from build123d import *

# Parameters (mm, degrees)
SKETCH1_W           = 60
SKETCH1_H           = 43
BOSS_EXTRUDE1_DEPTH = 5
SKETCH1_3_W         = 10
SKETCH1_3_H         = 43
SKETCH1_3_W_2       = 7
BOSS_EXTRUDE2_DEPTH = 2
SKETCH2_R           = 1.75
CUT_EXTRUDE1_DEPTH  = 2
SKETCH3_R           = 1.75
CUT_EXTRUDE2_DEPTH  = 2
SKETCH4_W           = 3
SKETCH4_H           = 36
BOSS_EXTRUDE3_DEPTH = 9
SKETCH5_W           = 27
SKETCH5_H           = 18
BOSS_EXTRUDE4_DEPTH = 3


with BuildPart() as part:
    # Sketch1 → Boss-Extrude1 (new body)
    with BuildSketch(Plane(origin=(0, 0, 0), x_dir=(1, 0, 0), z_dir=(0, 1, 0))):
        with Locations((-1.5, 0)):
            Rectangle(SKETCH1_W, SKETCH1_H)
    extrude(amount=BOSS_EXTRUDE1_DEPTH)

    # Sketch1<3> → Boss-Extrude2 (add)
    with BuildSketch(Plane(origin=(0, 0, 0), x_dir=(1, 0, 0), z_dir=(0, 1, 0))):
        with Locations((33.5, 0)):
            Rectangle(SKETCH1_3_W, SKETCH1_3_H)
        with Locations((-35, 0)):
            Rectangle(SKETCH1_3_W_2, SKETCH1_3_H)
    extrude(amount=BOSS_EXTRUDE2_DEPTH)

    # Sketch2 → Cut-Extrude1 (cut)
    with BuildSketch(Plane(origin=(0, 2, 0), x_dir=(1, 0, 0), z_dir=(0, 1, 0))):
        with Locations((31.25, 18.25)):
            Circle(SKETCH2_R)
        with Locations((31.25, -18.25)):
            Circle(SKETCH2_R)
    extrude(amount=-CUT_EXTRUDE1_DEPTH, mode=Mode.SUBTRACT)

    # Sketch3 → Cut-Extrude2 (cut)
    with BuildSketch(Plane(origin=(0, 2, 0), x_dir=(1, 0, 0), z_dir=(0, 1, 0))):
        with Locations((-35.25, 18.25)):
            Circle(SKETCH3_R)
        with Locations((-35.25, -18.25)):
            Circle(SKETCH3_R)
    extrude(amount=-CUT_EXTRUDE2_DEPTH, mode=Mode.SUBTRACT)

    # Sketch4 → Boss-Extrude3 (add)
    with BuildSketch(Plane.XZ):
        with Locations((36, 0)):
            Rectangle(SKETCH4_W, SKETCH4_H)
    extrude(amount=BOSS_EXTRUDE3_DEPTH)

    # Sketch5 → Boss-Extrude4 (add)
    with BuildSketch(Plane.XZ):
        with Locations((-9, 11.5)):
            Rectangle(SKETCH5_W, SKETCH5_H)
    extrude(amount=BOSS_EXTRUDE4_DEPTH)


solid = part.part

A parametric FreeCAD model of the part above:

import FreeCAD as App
import Part
import Sketcher
Q = App.Units.Quantity

doc = App.newDocument("Part")
body = doc.addObject("PartDesign::Body", "Body")

sketch1 = body.newObject("Sketcher::SketchObject", "Sketch")
sketch1.AttachmentSupport = (doc.getObject("XZ_Plane"), [""])
sketch1.MapMode = "FlatFace"
sketch1.addGeometry(Part.LineSegment(App.Vector(-32, -22, 0), App.Vector(-32, 22, 0)), False)
sketch1.addGeometry(Part.LineSegment(App.Vector(-32, 22, 0), App.Vector(28, 22, 0)), False)
sketch1.addGeometry(Part.LineSegment(App.Vector(28, 22, 0), App.Vector(28, -22, 0)), False)
sketch1.addGeometry(Part.LineSegment(App.Vector(28, -22, 0), App.Vector(-32, -22, 0)), False)
sketch1.addConstraint(Sketcher.Constraint("Coincident", 0, 2, 1, 1))
sketch1.addConstraint(Sketcher.Constraint("Coincident", 1, 2, 2, 1))
sketch1.addConstraint(Sketcher.Constraint("Coincident", 2, 2, 3, 1))
sketch1.addConstraint(Sketcher.Constraint("Coincident", 3, 2, 0, 1))
sketch1.addConstraint(Sketcher.Constraint("Vertical", 0))
sketch1.addConstraint(Sketcher.Constraint("Horizontal", 1))
sketch1.addConstraint(Sketcher.Constraint("Vertical", 2))
sketch1.addConstraint(Sketcher.Constraint("Horizontal", 3))
sketch1.addConstraint(Sketcher.Constraint("DistanceX", 1, 1, 1, 2, Q("60 mm")))
sketch1.addConstraint(Sketcher.Constraint("DistanceY", 0, 1, 0, 2, Q("43 mm")))
sketch1.addConstraint(Sketcher.Constraint("DistanceX", 0, 2, -1, 1, Q("31.5 mm")))
sketch1.addConstraint(Sketcher.Constraint("DistanceY", -1, 1, 0, 2, Q("21.5 mm")))
pad1 = body.newObject("PartDesign::Pad", "Pad")
pad1.Profile = sketch1
pad1.Length = 5
pad1.Reversed = True

sketch2 = body.newObject("Sketcher::SketchObject", "Sketch001")
sketch2.AttachmentSupport = (doc.getObject("XZ_Plane"), [""])
sketch2.MapMode = "FlatFace"
sketch2.addGeometry(Part.LineSegment(App.Vector(28, -22, 0), App.Vector(28, 22, 0)), False)
sketch2.addGeometry(Part.LineSegment(App.Vector(28, 22, 0), App.Vector(38, 22, 0)), False)
sketch2.addGeometry(Part.LineSegment(App.Vector(38, 22, 0), App.Vector(38, -22, 0)), False)
sketch2.addGeometry(Part.LineSegment(App.Vector(38, -22, 0), App.Vector(28, -22, 0)), False)
sketch2.addGeometry(Part.LineSegment(App.Vector(-38, -22, 0), App.Vector(-38, 22, 0)), False)
sketch2.addGeometry(Part.LineSegment(App.Vector(-38, 22, 0), App.Vector(-32, 22, 0)), False)
sketch2.addGeometry(Part.LineSegment(App.Vector(-32, 22, 0), App.Vector(-32, -22, 0)), False)
sketch2.addGeometry(Part.LineSegment(App.Vector(-32, -22, 0), App.Vector(-38, -22, 0)), False)
sketch2.addConstraint(Sketcher.Constraint("Coincident", 0, 2, 1, 1))
sketch2.addConstraint(Sketcher.Constraint("Coincident", 1, 2, 2, 1))
sketch2.addConstraint(Sketcher.Constraint("Coincident", 2, 2, 3, 1))
sketch2.addConstraint(Sketcher.Constraint("Coincident", 3, 2, 0, 1))
sketch2.addConstraint(Sketcher.Constraint("Coincident", 4, 2, 5, 1))
sketch2.addConstraint(Sketcher.Constraint("Coincident", 5, 2, 6, 1))
sketch2.addConstraint(Sketcher.Constraint("Coincident", 6, 2, 7, 1))
sketch2.addConstraint(Sketcher.Constraint("Coincident", 7, 2, 4, 1))
sketch2.addConstraint(Sketcher.Constraint("Vertical", 0))
sketch2.addConstraint(Sketcher.Constraint("Horizontal", 1))
sketch2.addConstraint(Sketcher.Constraint("Vertical", 2))
sketch2.addConstraint(Sketcher.Constraint("Horizontal", 3))
sketch2.addConstraint(Sketcher.Constraint("Vertical", 4))
sketch2.addConstraint(Sketcher.Constraint("Horizontal", 5))
sketch2.addConstraint(Sketcher.Constraint("Vertical", 6))
sketch2.addConstraint(Sketcher.Constraint("Horizontal", 7))
sketch2.addConstraint(Sketcher.Constraint("Symmetric", 2, 2, 4, 2, -1, 1))
sketch2.addConstraint(Sketcher.Constraint("Horizontal", 1, 2, 4, 2))
sketch2.addConstraint(Sketcher.Constraint("Horizontal", 3, 2, 6, 2))
sketch2.addConstraint(Sketcher.Constraint("DistanceX", 1, 1, 1, 2, Q("10 mm")))
sketch2.addConstraint(Sketcher.Constraint("DistanceX", 5, 1, 5, 2, Q("7 mm")))
sketch2.addConstraint(Sketcher.Constraint("DistanceY", 0, 1, 0, 2, Q("43 mm")))
sketch2.addConstraint(Sketcher.Constraint("DistanceX", 4, 2, 0, 2, Q("67 mm")))
pad2 = body.newObject("PartDesign::Pad", "Pad001")
pad2.Profile = sketch2
pad2.Length = 2
pad2.Reversed = True

sketch3 = body.newObject("Sketcher::SketchObject", "Sketch002")
sketch3.AttachmentSupport = (doc.getObject("XZ_Plane"), [""])
sketch3.MapMode = "FlatFace"
sketch3.AttachmentOffset = App.Placement(App.Vector(0, 0, -2), App.Rotation())
sketch3.addGeometry(Part.Circle(App.Vector(31.2, -18.2, 0), App.Vector(0, 0, 1), 1.8), False)
sketch3.addGeometry(Part.Circle(App.Vector(31.2, 18.2, 0), App.Vector(0, 0, 1), 1.8), False)
sketch3.addConstraint(Sketcher.Constraint("Equal", 0, 1))
sketch3.addConstraint(Sketcher.Constraint("Symmetric", 0, 3, 1, 3, -1))
sketch3.addConstraint(Sketcher.Constraint("Diameter", 0, Q("3.5 mm")))
sketch3.addConstraint(Sketcher.Constraint("DistanceY", 0, 3, 1, 3, Q("36.5 mm")))
sketch3.addConstraint(Sketcher.Constraint("DistanceX", -1, 1, 0, 3, Q("31.25 mm")))
pocket1 = body.newObject("PartDesign::Pocket", "Pocket")
pocket1.Profile = sketch3
pocket1.Length = 2
pocket1.Reversed = True

sketch4 = body.newObject("Sketcher::SketchObject", "Sketch003")
sketch4.AttachmentSupport = (doc.getObject("XZ_Plane"), [""])
sketch4.MapMode = "FlatFace"
sketch4.AttachmentOffset = App.Placement(App.Vector(0, 0, -2), App.Rotation())
sketch4.addGeometry(Part.Circle(App.Vector(-35.2, -18.2, 0), App.Vector(0, 0, 1), 1.8), False)
sketch4.addGeometry(Part.Circle(App.Vector(-35.2, 18.2, 0), App.Vector(0, 0, 1), 1.8), False)
sketch4.addConstraint(Sketcher.Constraint("Equal", 0, 1))
sketch4.addConstraint(Sketcher.Constraint("Symmetric", 0, 3, 1, 3, -1))
sketch4.addConstraint(Sketcher.Constraint("Diameter", 0, Q("3.5 mm")))
sketch4.addConstraint(Sketcher.Constraint("DistanceY", 0, 3, 1, 3, Q("36.5 mm")))
sketch4.addConstraint(Sketcher.Constraint("DistanceX", 0, 3, -1, 1, Q("35.25 mm")))
pocket2 = body.newObject("PartDesign::Pocket", "Pocket001")
pocket2.Profile = sketch4
pocket2.Length = 2
pocket2.Reversed = True

sketch5 = body.newObject("Sketcher::SketchObject", "Sketch004")
sketch5.AttachmentSupport = (doc.getObject("XZ_Plane"), [""])
sketch5.MapMode = "FlatFace"
sketch5.addGeometry(Part.LineSegment(App.Vector(34.5, 18, 0), App.Vector(34.5, -18, 0)), False)
sketch5.addGeometry(Part.LineSegment(App.Vector(34.5, -18, 0), App.Vector(37.5, -18, 0)), False)
sketch5.addGeometry(Part.LineSegment(App.Vector(37.5, -18, 0), App.Vector(37.5, 18, 0)), False)
sketch5.addGeometry(Part.LineSegment(App.Vector(37.5, 18, 0), App.Vector(34.5, 18, 0)), False)
sketch5.addConstraint(Sketcher.Constraint("Coincident", 0, 2, 1, 1))
sketch5.addConstraint(Sketcher.Constraint("Coincident", 1, 2, 2, 1))
sketch5.addConstraint(Sketcher.Constraint("Coincident", 2, 2, 3, 1))
sketch5.addConstraint(Sketcher.Constraint("Coincident", 3, 2, 0, 1))
sketch5.addConstraint(Sketcher.Constraint("Vertical", 0))
sketch5.addConstraint(Sketcher.Constraint("Horizontal", 1))
sketch5.addConstraint(Sketcher.Constraint("Vertical", 2))
sketch5.addConstraint(Sketcher.Constraint("Horizontal", 3))
sketch5.addConstraint(Sketcher.Constraint("DistanceX", 1, 1, 1, 2, Q("3 mm")))
sketch5.addConstraint(Sketcher.Constraint("DistanceY", 0, 2, 0, 1, Q("36 mm")))
sketch5.addConstraint(Sketcher.Constraint("DistanceY", 0, 2, -1, 1, Q("18 mm")))
sketch5.addConstraint(Sketcher.Constraint("DistanceX", -1, 1, 0, 2, Q("34.5 mm")))
pad3 = body.newObject("PartDesign::Pad", "Pad002")
pad3.Profile = sketch5
pad3.Length = 9

sketch6 = body.newObject("Sketcher::SketchObject", "Sketch005")
sketch6.AttachmentSupport = (doc.getObject("XZ_Plane"), [""])
sketch6.MapMode = "FlatFace"
sketch6.addGeometry(Part.LineSegment(App.Vector(-22, 20, 0), App.Vector(-22, 2, 0)), False)
sketch6.addGeometry(Part.LineSegment(App.Vector(-22, 2, 0), App.Vector(4, 2, 0)), False)
sketch6.addGeometry(Part.LineSegment(App.Vector(4, 2, 0), App.Vector(4, 20, 0)), False)
sketch6.addGeometry(Part.LineSegment(App.Vector(4, 20, 0), App.Vector(-22, 20, 0)), False)
sketch6.addConstraint(Sketcher.Constraint("Coincident", 0, 2, 1, 1))
sketch6.addConstraint(Sketcher.Constraint("Coincident", 1, 2, 2, 1))
sketch6.addConstraint(Sketcher.Constraint("Coincident", 2, 2, 3, 1))
sketch6.addConstraint(Sketcher.Constraint("Coincident", 3, 2, 0, 1))
sketch6.addConstraint(Sketcher.Constraint("Vertical", 0))
sketch6.addConstraint(Sketcher.Constraint("Horizontal", 1))
sketch6.addConstraint(Sketcher.Constraint("Vertical", 2))
sketch6.addConstraint(Sketcher.Constraint("Horizontal", 3))
sketch6.addConstraint(Sketcher.Constraint("DistanceX", 1, 1, 1, 2, Q("27 mm")))
sketch6.addConstraint(Sketcher.Constraint("DistanceY", 0, 2, 0, 1, Q("18 mm")))
sketch6.addConstraint(Sketcher.Constraint("DistanceX", 0, 2, -1, 1, Q("22.5 mm")))
sketch6.addConstraint(Sketcher.Constraint("DistanceY", -1, 1, 0, 2, Q("2.5 mm")))
pad4 = body.newObject("PartDesign::Pad", "Pad003")
pad4.Profile = sketch6
pad4.Length = 3

doc.recompute()
